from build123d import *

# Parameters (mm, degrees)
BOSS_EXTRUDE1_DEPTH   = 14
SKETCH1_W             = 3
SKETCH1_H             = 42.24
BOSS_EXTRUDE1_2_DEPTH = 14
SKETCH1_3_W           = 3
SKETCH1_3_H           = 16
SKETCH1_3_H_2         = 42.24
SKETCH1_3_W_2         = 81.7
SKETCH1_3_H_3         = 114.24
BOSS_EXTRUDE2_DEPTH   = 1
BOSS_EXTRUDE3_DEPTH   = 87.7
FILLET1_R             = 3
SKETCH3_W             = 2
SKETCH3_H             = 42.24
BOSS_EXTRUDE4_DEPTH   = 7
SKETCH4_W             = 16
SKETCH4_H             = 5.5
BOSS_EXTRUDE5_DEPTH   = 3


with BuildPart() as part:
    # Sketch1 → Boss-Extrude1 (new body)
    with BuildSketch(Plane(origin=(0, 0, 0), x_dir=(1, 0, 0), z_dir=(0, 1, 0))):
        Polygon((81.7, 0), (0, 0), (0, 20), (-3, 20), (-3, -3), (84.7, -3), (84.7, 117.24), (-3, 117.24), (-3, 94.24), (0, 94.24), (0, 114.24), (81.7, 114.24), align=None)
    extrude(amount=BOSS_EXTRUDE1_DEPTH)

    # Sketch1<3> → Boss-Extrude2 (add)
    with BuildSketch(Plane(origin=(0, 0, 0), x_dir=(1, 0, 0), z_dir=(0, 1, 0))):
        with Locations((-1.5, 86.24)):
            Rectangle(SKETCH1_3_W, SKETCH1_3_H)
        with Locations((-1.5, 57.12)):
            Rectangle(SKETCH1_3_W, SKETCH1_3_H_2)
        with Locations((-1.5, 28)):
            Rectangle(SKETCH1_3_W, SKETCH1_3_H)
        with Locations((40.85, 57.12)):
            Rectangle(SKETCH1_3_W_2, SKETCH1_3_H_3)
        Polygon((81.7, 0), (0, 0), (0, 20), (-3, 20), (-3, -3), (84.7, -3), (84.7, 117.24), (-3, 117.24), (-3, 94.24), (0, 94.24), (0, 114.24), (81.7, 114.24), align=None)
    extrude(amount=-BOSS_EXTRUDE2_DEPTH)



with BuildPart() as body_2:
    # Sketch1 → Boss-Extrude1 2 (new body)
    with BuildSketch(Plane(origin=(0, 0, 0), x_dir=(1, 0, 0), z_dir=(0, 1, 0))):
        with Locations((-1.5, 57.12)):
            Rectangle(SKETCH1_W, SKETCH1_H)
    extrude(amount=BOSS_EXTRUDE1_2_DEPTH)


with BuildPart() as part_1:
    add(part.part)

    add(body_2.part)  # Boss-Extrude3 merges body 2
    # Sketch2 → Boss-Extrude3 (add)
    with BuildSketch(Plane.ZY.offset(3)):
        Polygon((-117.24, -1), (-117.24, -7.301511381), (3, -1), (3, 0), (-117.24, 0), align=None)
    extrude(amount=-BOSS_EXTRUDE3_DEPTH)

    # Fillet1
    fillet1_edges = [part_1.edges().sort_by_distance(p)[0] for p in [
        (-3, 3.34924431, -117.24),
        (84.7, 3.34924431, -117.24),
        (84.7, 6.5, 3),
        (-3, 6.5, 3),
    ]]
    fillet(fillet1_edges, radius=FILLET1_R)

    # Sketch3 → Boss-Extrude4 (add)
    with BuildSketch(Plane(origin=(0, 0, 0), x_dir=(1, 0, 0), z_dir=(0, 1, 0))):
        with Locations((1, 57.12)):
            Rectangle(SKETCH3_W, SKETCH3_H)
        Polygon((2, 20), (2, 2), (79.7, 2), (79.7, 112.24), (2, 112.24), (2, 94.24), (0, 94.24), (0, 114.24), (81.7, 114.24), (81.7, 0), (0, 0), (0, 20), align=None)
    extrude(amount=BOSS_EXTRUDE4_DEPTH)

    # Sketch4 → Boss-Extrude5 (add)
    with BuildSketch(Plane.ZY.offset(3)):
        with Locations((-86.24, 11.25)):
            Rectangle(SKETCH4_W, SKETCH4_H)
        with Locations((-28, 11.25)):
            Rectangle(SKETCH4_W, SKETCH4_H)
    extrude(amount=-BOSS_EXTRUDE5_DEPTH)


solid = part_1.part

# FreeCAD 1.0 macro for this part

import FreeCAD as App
import Part
import Sketcher
from FreeCAD import Vector
Q = App.Units.Quantity


def edges_at(feature, points):
    """Names of the edges that pass closest to the given points."""
    edges = feature.Shape.Edges
    near = lambda p: min(range(len(edges)), key=lambda i: edges[i].distToShape(Part.Vertex(*p))[0])
    return sorted({f"Edge{near(p) + 1}" for p in points})

doc = App.newDocument("Part")
body = doc.addObject("PartDesign::Body", "Body")

sketch1 = body.newObject("Sketcher::SketchObject", "Sketch")
sketch1.AttachmentSupport = (doc.getObject("XZ_Plane"), [""])
sketch1.MapMode = "FlatFace"
sketch1.addGeometry([
    Part.LineSegment(Vector(81.7, 0, 0), Vector(0, 0, 0)),
    Part.LineSegment(Vector(0, 0, 0), Vector(0, -20, 0)),
    Part.LineSegment(Vector(0, -20, 0), Vector(-3, -20, 0)),
    Part.LineSegment(Vector(-3, -20, 0), Vector(-3, 3, 0)),
    Part.LineSegment(Vector(-3, 3, 0), Vector(84.7, 3, 0)),
    Part.LineSegment(Vector(84.7, 3, 0), Vector(84.7, -117.24, 0)),
    Part.LineSegment(Vector(84.7, -117.24, 0), Vector(-3, -117.24, 0)),
    Part.LineSegment(Vector(-3, -117.24, 0), Vector(-3, -94.24, 0)),
    Part.LineSegment(Vector(-3, -94.24, 0), Vector(0, -94.24, 0)),
    Part.LineSegment(Vector(0, -94.24, 0), Vector(0, -114.24, 0)),
    Part.LineSegment(Vector(0, -114.24, 0), Vector(81.7, -114.24, 0)),
    Part.LineSegment(Vector(81.7, -114.24, 0), Vector(81.7, 0, 0)),
], False)
sketch1.addConstraint([
    Sketcher.Constraint("Coincident", 0, 2, 1, 1),
    Sketcher.Constraint("Coincident", 1, 2, 2, 1),
    Sketcher.Constraint("Coincident", 2, 2, 3, 1),
    Sketcher.Constraint("Coincident", 3, 2, 4, 1),
    Sketcher.Constraint("Coincident", 4, 2, 5, 1),
    Sketcher.Constraint("Coincident", 5, 2, 6, 1),
    Sketcher.Constraint("Coincident", 6, 2, 7, 1),
    Sketcher.Constraint("Coincident", 7, 2, 8, 1),
    Sketcher.Constraint("Coincident", 8, 2, 9, 1),
    Sketcher.Constraint("Coincident", 9, 2, 10, 1),
    Sketcher.Constraint("Coincident", 10, 2, 11, 1),
    Sketcher.Constraint("Coincident", 11, 2, 0, 1),
    Sketcher.Constraint("Horizontal", 0),
    Sketcher.Constraint("Vertical", 1),
    Sketcher.Constraint("Horizontal", 2),
    Sketcher.Constraint("Vertical", 3),
    Sketcher.Constraint("Horizontal", 4),
    Sketcher.Constraint("Vertical", 5),
    Sketcher.Constraint("Horizontal", 6),
    Sketcher.Constraint("Vertical", 7),
    Sketcher.Constraint("Horizontal", 8),
    Sketcher.Constraint("Vertical", 9),
    Sketcher.Constraint("Horizontal", 10),
    Sketcher.Constraint("Vertical", 11),
    Sketcher.Constraint("Coincident", 0, 2, -1, 1),
    Sketcher.Constraint("PointOnObject", 8, 2, -2),
    Sketcher.Constraint("Vertical", 3, 2, 6, 2),
    Sketcher.Constraint("Equal", 3, 7),
    Sketcher.Constraint("Equal", 1, 9),
    Sketcher.Constraint("DistanceX", 2, 2, 2, 1, 3.0),
    Sketcher.Constraint("DistanceY", 1, 2, 1, 1, 20.0),
    Sketcher.Constraint("DistanceY", 3, 1, 3, 2, 23.0),
    Sketcher.Constraint("DistanceX", 0, 2, 0, 1, 81.7),
    Sketcher.Constraint("DistanceX", 4, 1, 4, 2, 87.7),
    Sketcher.Constraint("DistanceY", 5, 2, 5, 1, 120.24),
])
pad1 = body.newObject("PartDesign::Pad", "Pad")
pad1.Profile = sketch1
pad1.Length = 14
pad1.Reversed = True

sketch2 = body.newObject("Sketcher::SketchObject", "Sketch001")
sketch2.AttachmentSupport = (doc.getObject("XZ_Plane"), [""])
sketch2.MapMode = "FlatFace"
sketch2.addGeometry([
    Part.LineSegment(Vector(-3, 3, 0), Vector(84.7, 3, 0)),
    Part.LineSegment(Vector(84.7, 3, 0), Vector(84.7, -117.24, 0)),
    Part.LineSegment(Vector(84.7, -117.24, 0), Vector(-3, -117.24, 0)),
    Part.LineSegment(Vector(-3, -117.24, 0), Vector(-3, 3, 0)),
], False)
sketch2.addConstraint([
    Sketcher.Constraint("Coincident", 0, 2, 1, 1),
    Sketcher.Constraint("Coincident", 1, 2, 2, 1),
    Sketcher.Constraint("Coincident", 2, 2, 3, 1),
    Sketcher.Constraint("Coincident", 3, 2, 0, 1),
    Sketcher.Constraint("Horizontal", 0),
    Sketcher.Constraint("Vertical", 1),
    Sketcher.Constraint("Horizontal", 2),
    Sketcher.Constraint("Vertical", 3),
    Sketcher.Constraint("DistanceX", 0, 1, 0, 2, 87.7),
    Sketcher.Constraint("DistanceY", -1, 1, 0, 2, 3.0),
    Sketcher.Constraint("DistanceX", 2, 2, -1, 1, 3.0),
    Sketcher.Constraint("DistanceY", 1, 2, 1, 1, 120.24),
])
pad2 = body.newObject("PartDesign::Pad", "Pad001")
pad2.Profile = sketch2
pad2.Length = 1
body2 = doc.addObject("PartDesign::Body", "Body001")

sketch3 = body2.newObject("Sketcher::SketchObject", "Sketch002")
sketch3.AttachmentSupport = (doc.getObject("XZ_Plane001"), [""])
sketch3.MapMode = "FlatFace"
sketch3.addGeometry([
    Part.LineSegment(Vector(-3, -78.24, 0), Vector(-3, -36, 0)),
    Part.LineSegment(Vector(-3, -36, 0), Vector(0, -36, 0)),
    Part.LineSegment(Vector(0, -36, 0), Vector(0, -78.24, 0)),
    Part.LineSegment(Vector(0, -78.24, 0), Vector(-3, -78.24, 0)),
], False)
sketch3.addConstraint([
    Sketcher.Constraint("Coincident", 0, 2, 1, 1),
    Sketcher.Constraint("Coincident", 1, 2, 2, 1),
    Sketcher.Constraint("Coincident", 2, 2, 3, 1),
    Sketcher.Constraint("Coincident", 3, 2, 0, 1),
    Sketcher.Constraint("Vertical", 0),
    Sketcher.Constraint("Horizontal", 1),
    Sketcher.Constraint("Vertical", 2),
    Sketcher.Constraint("Horizontal", 3),
    Sketcher.Constraint("PointOnObject", 1, 2, -2),
    Sketcher.Constraint("DistanceX", 1, 1, 1, 2, 3.0),
    Sketcher.Constraint("DistanceY", 0, 2, -1, 1, 36.0),
    Sketcher.Constraint("DistanceY", 0, 1, 0, 2, 42.24),
])
pad3 = body2.newObject("PartDesign::Pad", "Pad002")
pad3.Profile = sketch3
pad3.Length = 14
pad3.Reversed = True
doc.recompute()

boolean = body.newObject("PartDesign::Boolean", "Boolean")
boolean.Type = "Fuse"
boolean.addObjects([body2])

sketch4 = body.newObject("Sketcher::SketchObject", "Sketch003")
sketch4.AttachmentSupport = (doc.getObject("YZ_Plane"), [""])
sketch4.MapMode = "FlatFace"
sketch4.AttachmentOffset = App.Placement(Vector(0, 0, -3), App.Rotation())
sketch4.addGeometry([
    Part.LineSegment(Vector(-7.301511, -117.24, 0), Vector(-1, 3, 0)),
    Part.LineSegment(Vector(-1, 3, 0), Vector(0, 3, 0)),
    Part.LineSegment(Vector(0, 3, 0), Vector(0, -117.24, 0)),
    Part.LineSegment(Vector(0, -117.24, 0), Vector(-7.301511, -117.24, 0)),
], False)
sketch4.addConstraint([
    Sketcher.Constraint("Coincident", 0, 2, 1, 1),
    Sketcher.Constraint("Coincident", 1, 2, 2, 1),
    Sketcher.Constraint("Coincident", 2, 2, 3, 1),
    Sketcher.Constraint("Coincident", 3, 2, 0, 1),
    Sketcher.Constraint("Horizontal", 1),
    Sketcher.Constraint("Vertical", 2),
    Sketcher.Constraint("Horizontal", 3),
    Sketcher.Constraint("PointOnObject", 1, 2, -2),
    Sketcher.Constraint("DistanceX", 1, 1, 1, 2, 1.0),
    Sketcher.Constraint("Angle", 0, Q("87 deg")),
    Sketcher.Constraint("DistanceY", -1, 1, 0, 2, 3.0),
    Sketcher.Constraint("DistanceY", 2, 2, 2, 1, 120.24),
])
pad4 = body.newObject("PartDesign::Pad", "Pad003")
pad4.Profile = sketch4
pad4.Length = 87.7
doc.recompute()

fillet = body.newObject("PartDesign::Fillet", "Fillet")
fillet.Base = (pad4, edges_at(pad4, [
    (-3, 3.349, -117.24),
    (84.7, 3.349, -117.24),
    (84.7, 6.5, 3),
    (-3, 6.5, 3),
]))
fillet.Radius = 3

sketch5 = body.newObject("Sketcher::SketchObject", "Sketch004")
sketch5.AttachmentSupport = (doc.getObject("XZ_Plane"), [""])
sketch5.MapMode = "FlatFace"
sketch5.addGeometry([
    Part.LineSegment(Vector(0, -78.24, 0), Vector(0, -36, 0)),
    Part.LineSegment(Vector(0, -36, 0), Vector(2, -36, 0)),
    Part.LineSegment(Vector(2, -36, 0), Vector(2, -78.24, 0)),
    Part.LineSegment(Vector(2, -78.24, 0), Vector(0, -78.24, 0)),
    Part.LineSegment(Vector(2, -2, 0), Vector(2, -20, 0)),
    Part.LineSegment(Vector(2, -20, 0), Vector(0, -20, 0)),
    Part.LineSegment(Vector(0, -20, 0), Vector(0, 0, 0)),
    Part.LineSegment(Vector(0, 0, 0), Vector(81.7, 0, 0)),
    Part.LineSegment(Vector(81.7, 0, 0), Vector(81.7, -114.24, 0)),
    Part.LineSegment(Vector(81.7, -114.24, 0), Vector(0, -114.24, 0)),
    Part.LineSegment(Vector(0, -114.24, 0), Vector(0, -94.24, 0)),
    Part.LineSegment(Vector(0, -94.24, 0), Vector(2, -94.24, 0)),
    Part.LineSegment(Vector(2, -94.24, 0), Vector(2, -112.24, 0)),
    Part.LineSegment(Vector(2, -112.24, 0), Vector(79.7, -112.24, 0)),
    Part.LineSegment(Vector(79.7, -112.24, 0), Vector(79.7, -2, 0)),
    Part.LineSegment(Vector(79.7, -2, 0), Vector(2, -2, 0)),
], False)
sketch5.addConstraint([
    Sketcher.Constraint("Coincident", 0, 2, 1, 1),
    Sketcher.Constraint("Coincident", 1, 2, 2, 1),
    Sketcher.Constraint("Coincident", 2, 2, 3, 1),
    Sketcher.Constraint("Coincident", 3, 2, 0, 1),
    Sketcher.Constraint("Coincident", 4, 2, 5, 1),
    Sketcher.Constraint("Coincident", 5, 2, 6, 1),
    Sketcher.Constraint("Coincident", 6, 2, 7, 1),
    Sketcher.Constraint("Coincident", 7, 2, 8, 1),
    Sketcher.Constraint("Coincident", 8, 2, 9, 1),
    Sketcher.Constraint("Coincident", 9, 2, 10, 1),
    Sketcher.Constraint("Coincident", 10, 2, 11, 1),
    Sketcher.Constraint("Coincident", 11, 2, 12, 1),
    Sketcher.Constraint("Coincident", 12, 2, 13, 1),
    Sketcher.Constraint("Coincident", 13, 2, 14, 1),
    Sketcher.Constraint("Coincident", 14, 2, 15, 1),
    Sketcher.Constraint("Coincident", 15, 2, 4, 1),
    Sketcher.Constraint("Vertical", 0),
    Sketcher.Constraint("Horizontal", 1),
    Sketcher.Constraint("Vertical", 2),
    Sketcher.Constraint("Horizontal", 3),
    Sketcher.Constraint("Vertical", 4),
    Sketcher.Constraint("Horizontal", 5),
    Sketcher.Constraint("Vertical", 6),
    Sketcher.Constraint("Horizontal", 7),
    Sketcher.Constraint("Vertical", 8),
    Sketcher.Constraint("Horizontal", 9),
    Sketcher.Constraint("Vertical", 10),
    Sketcher.Constraint("Horizontal", 11),
    Sketcher.Constraint("Vertical", 12),
    Sketcher.Constraint("Horizontal", 13),
    Sketcher.Constraint("Vertical", 14),
    Sketcher.Constraint("Horizontal", 15),
    Sketcher.Constraint("Coincident", 6, 2, -1, 1),
    Sketcher.Constraint("PointOnObject", 0, 2, -2),
    Sketcher.Constraint("PointOnObject", 9, 2, -2),
    Sketcher.Constraint("Vertical", 2, 2, 4, 2),
    Sketcher.Constraint("Vertical", 4, 2, 11, 2),
    Sketcher.Constraint("Equal", 6, 10),
    Sketcher.Constraint("Equal", 4, 12),
    Sketcher.Constraint("DistanceX", 1, 1, 1, 2, 2.0),
    Sketcher.Constraint("DistanceY", 4, 2, 4, 1, 18.0),
    Sketcher.Constraint("DistanceY", 6, 1, 6, 2, 20.0),
    Sketcher.Constraint("DistanceX", 7, 1, 7, 2, 81.7),
    Sketcher.Constraint("DistanceX", 13, 1, 13, 2, 77.7),
    Sketcher.Constraint("DistanceY", 0, 2, -1, 1, 36.0),
    Sketcher.Constraint("DistanceY", 8, 2, 2, 2, 36.0),
    Sketcher.Constraint("DistanceY", 0, 1, 0, 2, 42.24),
])
pad5 = body.newObject("PartDesign::Pad", "Pad004")
pad5.Profile = sketch5
pad5.Length = 7
pad5.Reversed = True

sketch6 = body.newObject("Sketcher::SketchObject", "Sketch005")
sketch6.AttachmentSupport = (doc.getObject("YZ_Plane"), [""])
sketch6.MapMode = "FlatFace"
sketch6.AttachmentOffset = App.Placement(Vector(0, 0, -3), App.Rotation())
sketch6.addGeometry([
    Part.LineSegment(Vector(14, -94.24, 0), Vector(8.5, -94.24, 0)),
    Part.LineSegment(Vector(8.5, -94.24, 0), Vector(8.5, -78.24, 0)),
    Part.LineSegment(Vector(8.5, -78.24, 0), Vector(14, -78.24, 0)),
    Part.LineSegment(Vector(14, -78.24, 0), Vector(14, -94.24, 0)),
    Part.LineSegment(Vector(14, -36, 0), Vector(8.5, -36, 0)),
    Part.LineSegment(Vector(8.5, -36, 0), Vector(8.5, -20, 0)),
    Part.LineSegment(Vector(8.5, -20, 0), Vector(14, -20, 0)),
    Part.LineSegment(Vector(14, -20, 0), Vector(14, -36, 0)),
], False)
sketch6.addConstraint([
    Sketcher.Constraint("Coincident", 0, 2, 1, 1),
    Sketcher.Constraint("Coincident", 1, 2, 2, 1),
    Sketcher.Constraint("Coincident", 2, 2, 3, 1),
    Sketcher.Constraint("Coincident", 3, 2, 0, 1),
    Sketcher.Constraint("Coincident", 4, 2, 5, 1),
    Sketcher.Constraint("Coincident", 5, 2, 6, 1),
    Sketcher.Constraint("Coincident", 6, 2, 7, 1),
    Sketcher.Constraint("Coincident", 7, 2, 4, 1),
    Sketcher.Constraint("Horizontal", 0),
    Sketcher.Constraint("Vertical", 1),
    Sketcher.Constraint("Horizontal", 2),
    Sketcher.Constraint("Vertical", 3),
    Sketcher.Constraint("Horizontal", 4),
    Sketcher.Constraint("Vertical", 5),
    Sketcher.Constraint("Horizontal", 6),
    Sketcher.Constraint("Vertical", 7),
    Sketcher.Constraint("Vertical", 1, 2, 4, 2),
    Sketcher.Constraint("Vertical", 3, 2, 6, 2),
    Sketcher.Constraint("Equal", 3, 5),
    Sketcher.Constraint("DistanceY", 1, 1, 1, 2, 16.0),
    Sketcher.Constraint("DistanceX", 0, 2, 0, 1, 5.5),
    Sketcher.Constraint("DistanceX", -1, 1, 2, 2, 14.0),
    Sketcher.Constraint("DistanceY", 4, 2, -1, 1, 36.0),
    Sketcher.Constraint("DistanceY", 0, 2, -1, 1, 94.24),
])
pad6 = body.newObject("PartDesign::Pad", "Pad005")
pad6.Profile = sketch6
pad6.Length = 3

doc.recompute()
